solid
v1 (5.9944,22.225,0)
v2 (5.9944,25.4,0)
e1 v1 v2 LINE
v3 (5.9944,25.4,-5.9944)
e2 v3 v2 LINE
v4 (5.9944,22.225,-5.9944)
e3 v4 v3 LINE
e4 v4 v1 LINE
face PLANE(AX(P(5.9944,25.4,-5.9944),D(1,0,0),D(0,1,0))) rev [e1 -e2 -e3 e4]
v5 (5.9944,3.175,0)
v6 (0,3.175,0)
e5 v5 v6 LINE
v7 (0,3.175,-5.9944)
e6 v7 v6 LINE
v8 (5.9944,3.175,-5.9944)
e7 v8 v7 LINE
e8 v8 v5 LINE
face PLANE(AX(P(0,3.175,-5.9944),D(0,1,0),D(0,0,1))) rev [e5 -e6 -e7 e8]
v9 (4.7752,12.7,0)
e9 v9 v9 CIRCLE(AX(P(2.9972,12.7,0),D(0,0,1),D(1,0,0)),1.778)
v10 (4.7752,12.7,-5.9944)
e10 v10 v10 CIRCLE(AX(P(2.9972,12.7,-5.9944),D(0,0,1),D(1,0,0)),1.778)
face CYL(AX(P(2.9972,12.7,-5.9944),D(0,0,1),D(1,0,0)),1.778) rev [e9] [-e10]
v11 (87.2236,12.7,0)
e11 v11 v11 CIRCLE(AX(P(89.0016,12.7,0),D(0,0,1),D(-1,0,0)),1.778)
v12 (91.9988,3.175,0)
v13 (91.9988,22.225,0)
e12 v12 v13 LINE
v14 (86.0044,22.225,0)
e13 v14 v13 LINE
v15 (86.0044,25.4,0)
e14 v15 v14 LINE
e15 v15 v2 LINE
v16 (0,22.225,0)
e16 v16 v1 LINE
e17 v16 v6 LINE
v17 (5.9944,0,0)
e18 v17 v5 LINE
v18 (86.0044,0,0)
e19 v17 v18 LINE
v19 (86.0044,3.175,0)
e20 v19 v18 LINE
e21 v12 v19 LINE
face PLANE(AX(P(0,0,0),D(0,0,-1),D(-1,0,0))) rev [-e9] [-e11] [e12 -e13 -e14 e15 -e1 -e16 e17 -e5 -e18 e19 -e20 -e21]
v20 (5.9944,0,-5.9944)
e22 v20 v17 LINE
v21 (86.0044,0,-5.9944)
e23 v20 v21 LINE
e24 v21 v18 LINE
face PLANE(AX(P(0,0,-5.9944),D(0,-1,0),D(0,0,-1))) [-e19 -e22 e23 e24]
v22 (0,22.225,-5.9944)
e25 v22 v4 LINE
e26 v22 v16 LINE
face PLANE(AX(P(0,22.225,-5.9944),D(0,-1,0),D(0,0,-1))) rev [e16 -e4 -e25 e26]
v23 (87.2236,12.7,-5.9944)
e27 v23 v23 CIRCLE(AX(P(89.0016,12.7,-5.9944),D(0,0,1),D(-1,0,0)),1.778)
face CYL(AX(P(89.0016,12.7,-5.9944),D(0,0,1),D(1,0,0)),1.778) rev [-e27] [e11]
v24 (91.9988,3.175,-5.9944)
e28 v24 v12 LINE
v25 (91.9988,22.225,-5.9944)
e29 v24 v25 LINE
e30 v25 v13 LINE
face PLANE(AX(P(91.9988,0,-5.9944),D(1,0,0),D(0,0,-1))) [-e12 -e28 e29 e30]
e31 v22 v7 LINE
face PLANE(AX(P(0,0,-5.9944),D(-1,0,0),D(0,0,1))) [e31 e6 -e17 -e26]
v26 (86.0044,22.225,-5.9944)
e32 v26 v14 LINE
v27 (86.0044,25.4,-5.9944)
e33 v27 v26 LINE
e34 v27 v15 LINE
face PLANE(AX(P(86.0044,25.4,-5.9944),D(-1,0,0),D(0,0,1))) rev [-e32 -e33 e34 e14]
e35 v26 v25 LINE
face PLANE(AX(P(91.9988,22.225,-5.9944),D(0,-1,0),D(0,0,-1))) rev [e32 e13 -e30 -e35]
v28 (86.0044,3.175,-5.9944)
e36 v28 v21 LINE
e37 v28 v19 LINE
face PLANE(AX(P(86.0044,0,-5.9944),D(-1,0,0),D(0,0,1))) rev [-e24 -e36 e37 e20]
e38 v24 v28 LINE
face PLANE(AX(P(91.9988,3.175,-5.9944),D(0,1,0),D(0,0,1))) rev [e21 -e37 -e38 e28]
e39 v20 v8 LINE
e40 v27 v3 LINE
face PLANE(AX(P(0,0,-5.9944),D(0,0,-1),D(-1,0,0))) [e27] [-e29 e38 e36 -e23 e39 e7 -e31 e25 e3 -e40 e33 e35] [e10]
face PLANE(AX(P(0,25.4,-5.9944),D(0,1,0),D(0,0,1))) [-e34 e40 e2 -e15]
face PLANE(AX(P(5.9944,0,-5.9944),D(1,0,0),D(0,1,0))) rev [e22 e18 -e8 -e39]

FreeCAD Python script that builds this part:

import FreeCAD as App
import Part
import Sketcher
from FreeCAD import Vector
Q = App.Units.Quantity


def add_polygon(sketch, points):
    """Adds a closed chain of lines whose ends are joined by coincident constraints."""
    first, n = sketch.GeometryCount, len(points)
    for a, b in zip(points, points[1:] + points[:1]):
        sketch.addGeometry(Part.LineSegment(App.Vector(*a, 0), App.Vector(*b, 0)), False)
    for i in range(n):
        sketch.addConstraint(Sketcher.Constraint("Coincident", first + i, 2, first + (i + 1) % n, 1))

doc = App.newDocument("Part")
body = doc.addObject("PartDesign::Body", "Body")

sketch1 = body.newObject("Sketcher::SketchObject", "Sketch")
sketch1.AttachmentSupport = (doc.getObject("XY_Plane"), [""])
sketch1.MapMode = "FlatFace"
add_polygon(sketch1, [(0, 25), (0, 0), (92, 0), (92, 25)])
sketch1.addConstraint([
    Sketcher.Constraint("Vertical", 0),
    Sketcher.Constraint("Horizontal", 1),
    Sketcher.Constraint("Vertical", 2),
    Sketcher.Constraint("Horizontal", 3),
    Sketcher.Constraint("Coincident", 0, 2, -1, 1),
    Sketcher.Constraint("DistanceY", 0, 2, 0, 1, Q("1 in")),
    Sketcher.Constraint("DistanceX", 1, 1, 1, 2, Q("3.622 in")),
])
pad1 = body.newObject("PartDesign::Pad", "Pad")
pad1.Profile = sketch1
pad1.Length = Q("0.236 in")
pad1.Reversed = True

sketch2 = body.newObject("Sketcher::SketchObject", "Sketch001")
sketch2.AttachmentSupport = (doc.getObject("XY_Plane"), [""])
sketch2.MapMode = "FlatFace"
sketch2.addGeometry([
    Part.Circle(Vector(3, 12.7, 0), Vector(0, 0, 1), 1.8),
    Part.Circle(Vector(89, 12.7, 0), Vector(0, 0, 1), 1.8),
], False)
sketch2.addConstraint([
    Sketcher.Constraint("Equal", 0, 1),
    Sketcher.Constraint("Horizontal", 0, 3, 1, 3),
    Sketcher.Constraint("Diameter", 0, Q("0.14 in")),
    Sketcher.Constraint("DistanceY", -1, 1, 0, 3, Q("0.5 in")),
    Sketcher.Constraint("DistanceX", -1, 1, 0, 3, Q("0.118 in")),
    Sketcher.Constraint("DistanceX", -1, 1, 1, 3, Q("3.504 in")),
])
pocket1 = body.newObject("PartDesign::Pocket", "Pocket")
pocket1.Profile = sketch2
pocket1.Type = "ThroughAll"

sketch3 = body.newObject("Sketcher::SketchObject", "Sketch002")
sketch3.AttachmentSupport = (doc.getObject("XY_Plane"), [""])
sketch3.MapMode = "FlatFace"
add_polygon(sketch3, [(0, 25.4), (0, 22.2), (6, 22.2), (6, 25.4)])
add_polygon(sketch3, [(86, 25.4), (86, 22.2), (92, 22.2), (92, 25.4)])
add_polygon(sketch3, [(86, 3.2), (86, 0), (92, 0), (92, 3.2)])
add_polygon(sketch3, [(0, 3.2), (0, 0), (6, 0), (6, 3.2)])
sketch3.addConstraint([
    Sketcher.Constraint("Vertical", 0),
    Sketcher.Constraint("Horizontal", 1),
    Sketcher.Constraint("Vertical", 2),
    Sketcher.Constraint("Horizontal", 3),
    Sketcher.Constraint("Vertical", 4),
    Sketcher.Constraint("Horizontal", 5),
    Sketcher.Constraint("Vertical", 6),
    Sketcher.Constraint("Horizontal", 7),
    Sketcher.Constraint("Vertical", 8),
    Sketcher.Constraint("Horizontal", 9),
    Sketcher.Constraint("Vertical", 10),
    Sketcher.Constraint("Horizontal", 11),
    Sketcher.Constraint("Vertical", 12),
    Sketcher.Constraint("Horizontal", 13),
    Sketcher.Constraint("Vertical", 14),
    Sketcher.Constraint("Horizontal", 15),
    Sketcher.Constraint("Coincident", 12, 2, -1, 1),
    Sketcher.Constraint("PointOnObject", 0, 2, -2),
    Sketcher.Constraint("PointOnObject", 8, 2, -1),
    Sketcher.Constraint("Horizontal", 1, 2, 4, 2),
    Sketcher.Constraint("Horizontal", 3, 2, 6, 2),
    Sketcher.Constraint("Horizontal", 11, 2, 14, 2),
    Sketcher.Constraint("Vertical", 7, 2, 8, 2),
    Sketcher.Constraint("Vertical", 6, 2, 9, 2),
    Sketcher.Constraint("Vertical", 2, 2, 13, 2),
    Sketcher.Constraint("Equal", 3, 5),
    Sketcher.Constraint("Equal", 6, 8),
    Sketcher.Constraint("DistanceY", -1, 1, 2, 2, Q("1 in")),
    Sketcher.Constraint("DistanceX", 1, 1, 1, 2, Q("0.236 in")),
    Sketcher.Constraint("DistanceY", 0, 2, 0, 1, Q("0.125 in")),
    Sketcher.Constraint("DistanceX", 1, 2, 4, 2, Q("3.15 in")),
])
pocket2 = body.newObject("PartDesign::Pocket", "Pocket001")
pocket2.Profile = sketch3
pocket2.Type = "ThroughAll"

doc.recompute()
